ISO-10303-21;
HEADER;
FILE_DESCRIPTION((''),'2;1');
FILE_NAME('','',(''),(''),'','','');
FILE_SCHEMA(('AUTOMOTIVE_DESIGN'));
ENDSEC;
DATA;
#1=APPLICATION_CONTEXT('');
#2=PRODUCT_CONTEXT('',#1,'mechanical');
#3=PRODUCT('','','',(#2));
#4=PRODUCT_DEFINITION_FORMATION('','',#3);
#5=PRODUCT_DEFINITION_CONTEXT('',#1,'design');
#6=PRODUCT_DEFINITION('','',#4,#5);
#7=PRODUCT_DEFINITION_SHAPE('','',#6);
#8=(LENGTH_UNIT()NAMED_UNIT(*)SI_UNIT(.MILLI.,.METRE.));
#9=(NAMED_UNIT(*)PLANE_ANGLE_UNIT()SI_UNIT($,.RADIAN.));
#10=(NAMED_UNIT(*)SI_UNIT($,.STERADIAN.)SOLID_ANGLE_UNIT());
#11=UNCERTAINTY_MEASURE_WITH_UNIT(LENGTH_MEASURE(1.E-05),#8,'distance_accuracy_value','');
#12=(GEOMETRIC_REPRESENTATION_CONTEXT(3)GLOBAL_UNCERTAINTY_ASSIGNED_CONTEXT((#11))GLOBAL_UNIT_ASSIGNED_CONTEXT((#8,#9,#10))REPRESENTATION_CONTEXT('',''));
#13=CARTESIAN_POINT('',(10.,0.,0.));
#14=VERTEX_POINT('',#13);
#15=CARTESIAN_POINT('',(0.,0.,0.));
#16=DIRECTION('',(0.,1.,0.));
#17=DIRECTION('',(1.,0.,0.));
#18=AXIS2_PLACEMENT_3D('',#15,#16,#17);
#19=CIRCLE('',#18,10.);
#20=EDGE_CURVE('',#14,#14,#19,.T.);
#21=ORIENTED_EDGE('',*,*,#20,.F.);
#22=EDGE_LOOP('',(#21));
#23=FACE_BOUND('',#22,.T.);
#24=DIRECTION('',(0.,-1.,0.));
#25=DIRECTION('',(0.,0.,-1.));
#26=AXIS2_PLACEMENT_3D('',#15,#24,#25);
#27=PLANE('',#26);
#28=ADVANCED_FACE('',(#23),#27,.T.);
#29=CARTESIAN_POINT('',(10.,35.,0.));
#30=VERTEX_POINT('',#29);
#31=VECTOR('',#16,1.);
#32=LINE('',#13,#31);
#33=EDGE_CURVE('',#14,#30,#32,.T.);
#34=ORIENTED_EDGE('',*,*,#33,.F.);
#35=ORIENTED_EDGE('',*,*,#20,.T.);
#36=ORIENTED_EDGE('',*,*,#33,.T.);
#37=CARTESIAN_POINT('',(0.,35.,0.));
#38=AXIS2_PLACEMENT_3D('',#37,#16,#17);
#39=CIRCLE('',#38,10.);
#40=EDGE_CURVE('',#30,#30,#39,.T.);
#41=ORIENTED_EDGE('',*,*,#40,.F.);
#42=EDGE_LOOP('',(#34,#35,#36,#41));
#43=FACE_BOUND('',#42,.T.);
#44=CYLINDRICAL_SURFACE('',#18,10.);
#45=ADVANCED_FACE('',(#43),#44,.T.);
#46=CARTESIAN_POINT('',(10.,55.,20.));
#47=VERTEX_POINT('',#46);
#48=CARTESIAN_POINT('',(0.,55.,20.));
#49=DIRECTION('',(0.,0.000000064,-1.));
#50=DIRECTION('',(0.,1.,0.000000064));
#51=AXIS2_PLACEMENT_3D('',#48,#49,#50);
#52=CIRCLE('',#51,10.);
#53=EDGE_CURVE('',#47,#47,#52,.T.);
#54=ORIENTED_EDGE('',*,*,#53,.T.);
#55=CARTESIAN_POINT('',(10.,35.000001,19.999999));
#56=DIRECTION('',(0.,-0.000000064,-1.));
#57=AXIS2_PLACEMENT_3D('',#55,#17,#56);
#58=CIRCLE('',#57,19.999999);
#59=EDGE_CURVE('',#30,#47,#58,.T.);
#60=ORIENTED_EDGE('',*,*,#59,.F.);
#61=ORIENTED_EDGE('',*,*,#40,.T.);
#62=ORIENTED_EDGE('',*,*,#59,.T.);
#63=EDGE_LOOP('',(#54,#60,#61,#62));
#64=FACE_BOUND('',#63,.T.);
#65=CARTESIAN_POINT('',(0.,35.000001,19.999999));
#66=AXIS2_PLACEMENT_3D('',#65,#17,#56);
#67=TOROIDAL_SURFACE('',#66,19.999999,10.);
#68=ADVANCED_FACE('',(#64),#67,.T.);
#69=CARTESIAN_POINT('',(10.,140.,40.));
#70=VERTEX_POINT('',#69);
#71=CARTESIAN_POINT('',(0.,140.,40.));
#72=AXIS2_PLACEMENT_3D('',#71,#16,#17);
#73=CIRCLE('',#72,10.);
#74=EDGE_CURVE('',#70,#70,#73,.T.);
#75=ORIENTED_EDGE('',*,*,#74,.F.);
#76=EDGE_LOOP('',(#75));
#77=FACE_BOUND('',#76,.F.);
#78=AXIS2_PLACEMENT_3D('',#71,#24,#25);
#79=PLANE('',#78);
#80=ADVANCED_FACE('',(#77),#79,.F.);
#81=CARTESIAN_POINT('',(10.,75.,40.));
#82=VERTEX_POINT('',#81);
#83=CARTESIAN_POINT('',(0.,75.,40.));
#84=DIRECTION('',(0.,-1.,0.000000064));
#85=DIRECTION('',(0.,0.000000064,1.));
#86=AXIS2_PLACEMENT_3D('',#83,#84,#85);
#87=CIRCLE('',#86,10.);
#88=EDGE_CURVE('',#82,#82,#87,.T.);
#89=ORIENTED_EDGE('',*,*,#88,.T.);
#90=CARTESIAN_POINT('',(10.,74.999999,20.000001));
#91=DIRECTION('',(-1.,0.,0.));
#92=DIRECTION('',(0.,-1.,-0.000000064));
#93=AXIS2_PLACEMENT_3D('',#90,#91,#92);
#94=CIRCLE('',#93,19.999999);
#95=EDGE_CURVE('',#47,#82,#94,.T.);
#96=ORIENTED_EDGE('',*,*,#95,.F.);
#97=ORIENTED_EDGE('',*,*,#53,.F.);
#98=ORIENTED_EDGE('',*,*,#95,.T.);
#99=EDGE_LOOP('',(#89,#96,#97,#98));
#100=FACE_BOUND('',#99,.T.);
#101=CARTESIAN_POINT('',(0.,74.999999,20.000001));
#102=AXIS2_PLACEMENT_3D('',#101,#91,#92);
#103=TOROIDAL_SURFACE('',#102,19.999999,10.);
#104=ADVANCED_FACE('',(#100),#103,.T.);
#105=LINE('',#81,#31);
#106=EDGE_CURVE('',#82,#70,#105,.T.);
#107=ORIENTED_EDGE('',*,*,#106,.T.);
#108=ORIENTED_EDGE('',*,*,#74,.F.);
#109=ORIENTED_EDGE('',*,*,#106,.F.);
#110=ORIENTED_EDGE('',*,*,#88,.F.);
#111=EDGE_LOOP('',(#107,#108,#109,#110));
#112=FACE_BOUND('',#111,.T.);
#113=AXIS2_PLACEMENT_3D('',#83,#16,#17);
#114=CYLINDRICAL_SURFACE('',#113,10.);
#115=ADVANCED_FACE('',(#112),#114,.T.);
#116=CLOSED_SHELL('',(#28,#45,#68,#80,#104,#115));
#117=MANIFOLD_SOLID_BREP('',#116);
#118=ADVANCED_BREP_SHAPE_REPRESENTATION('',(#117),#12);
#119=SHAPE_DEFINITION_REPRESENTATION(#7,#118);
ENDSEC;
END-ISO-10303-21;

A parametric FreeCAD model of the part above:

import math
import FreeCAD as App
import Part
import Sketcher
from FreeCAD import Vector
Q = App.Units.Quantity

doc = App.newDocument("Part")
body = doc.addObject("PartDesign::Body", "Body")

# Sketch on XZ plane
sketch1 = body.newObject("Sketcher::SketchObject", "Sketch")
sketch1.AttachmentSupport = (doc.getObject("XZ_Plane"), [""])
sketch1.MapMode = "FlatFace"
sketch1.addGeometry(Part.Circle(Vector(0, 0, 0), Vector(0, 0, 1), 10), False)
sketch1.addConstraint([
    Sketcher.Constraint("Coincident", 0, 3, -1, 1),
    Sketcher.Constraint("Diameter", 0, Q("20 mm")),
])

# Sketch on YZ plane
sketch2 = body.newObject("Sketcher::SketchObject", "Sketch001")
sketch2.AttachmentSupport = (doc.getObject("YZ_Plane"), [""])
sketch2.MapMode = "FlatFace"
sketch2.addGeometry([
    Part.LineSegment(Vector(0, 0, 0), Vector(35, 0, 0)),
    Part.ArcOfCircle(Part.Circle(Vector(35.000001, 19.999999, 0), Vector(0, 0, 1), 19.999999), math.radians(-90.000004), math.radians(0.000004)),
    Part.ArcOfCircle(Part.Circle(Vector(74.999999, 20.000001, 0), Vector(0, 0, 1), 19.999999), math.radians(89.999996), math.radians(180.000004)),
    Part.LineSegment(Vector(75, 40, 0), Vector(140, 40, 0)),
], False)
sketch2.addConstraint([
    Sketcher.Constraint("Tangent", 0, 2, 1, 1),
    Sketcher.Constraint("Tangent", 1, 2, 2, 2),
    Sketcher.Constraint("Tangent", 2, 1, 3, 1),
    Sketcher.Constraint("Horizontal", 0),
    Sketcher.Constraint("Horizontal", 3),
    Sketcher.Constraint("Coincident", 0, 1, -1, 1),
    Sketcher.Constraint("Equal", 1, 2),
    Sketcher.Constraint("Horizontal", 2, 3, 1, 2),
    Sketcher.Constraint("Radius", 1, Q("19.999999 mm")),
    Sketcher.Constraint("DistanceX", 0, 1, 0, 2, Q("35 mm")),
    Sketcher.Constraint("DistanceX", 3, 1, 3, 2, Q("65 mm")),
])
doc.recompute()

additivepipe = body.newObject("PartDesign::AdditivePipe", "AdditivePipe")
additivepipe.Profile = sketch1
additivepipe.Spine = (sketch2, ["Edge1", "Edge2", "Edge3", "Edge4"])

doc.recompute()
